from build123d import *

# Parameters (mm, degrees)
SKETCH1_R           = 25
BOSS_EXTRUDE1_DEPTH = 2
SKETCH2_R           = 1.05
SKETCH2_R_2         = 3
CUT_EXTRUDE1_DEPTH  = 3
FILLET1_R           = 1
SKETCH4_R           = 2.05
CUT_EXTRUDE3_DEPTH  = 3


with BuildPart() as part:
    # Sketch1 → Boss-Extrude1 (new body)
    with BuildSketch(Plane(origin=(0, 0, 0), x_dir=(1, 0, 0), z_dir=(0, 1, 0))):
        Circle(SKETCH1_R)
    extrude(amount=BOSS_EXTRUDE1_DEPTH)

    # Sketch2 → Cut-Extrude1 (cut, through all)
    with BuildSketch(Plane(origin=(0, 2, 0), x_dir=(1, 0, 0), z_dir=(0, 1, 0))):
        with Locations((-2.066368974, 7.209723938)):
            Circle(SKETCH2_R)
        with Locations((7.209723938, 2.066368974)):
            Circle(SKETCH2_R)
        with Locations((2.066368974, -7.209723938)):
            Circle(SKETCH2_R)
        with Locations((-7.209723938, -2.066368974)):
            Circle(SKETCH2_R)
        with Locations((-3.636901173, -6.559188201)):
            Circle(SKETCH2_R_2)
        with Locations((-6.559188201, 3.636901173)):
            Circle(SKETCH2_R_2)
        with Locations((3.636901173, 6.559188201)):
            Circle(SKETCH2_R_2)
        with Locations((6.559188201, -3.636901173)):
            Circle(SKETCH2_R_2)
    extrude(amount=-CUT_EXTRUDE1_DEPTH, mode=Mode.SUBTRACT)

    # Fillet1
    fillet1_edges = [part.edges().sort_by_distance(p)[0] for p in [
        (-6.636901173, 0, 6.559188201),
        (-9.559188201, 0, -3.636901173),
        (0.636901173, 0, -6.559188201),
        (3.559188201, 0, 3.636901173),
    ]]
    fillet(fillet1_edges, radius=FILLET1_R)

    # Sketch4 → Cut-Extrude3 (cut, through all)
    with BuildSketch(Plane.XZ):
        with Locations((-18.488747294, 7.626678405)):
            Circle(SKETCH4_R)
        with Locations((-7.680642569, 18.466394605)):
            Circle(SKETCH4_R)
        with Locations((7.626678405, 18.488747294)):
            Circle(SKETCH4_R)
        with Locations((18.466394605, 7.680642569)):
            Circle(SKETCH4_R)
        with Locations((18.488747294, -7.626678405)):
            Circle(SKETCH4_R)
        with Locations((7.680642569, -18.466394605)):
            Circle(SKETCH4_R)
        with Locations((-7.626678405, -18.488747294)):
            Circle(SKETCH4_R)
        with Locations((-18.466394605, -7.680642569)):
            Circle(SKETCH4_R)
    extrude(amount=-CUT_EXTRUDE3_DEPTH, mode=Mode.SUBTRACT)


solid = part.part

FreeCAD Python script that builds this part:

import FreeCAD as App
import Part
import Sketcher
from FreeCAD import Vector


def edges_at(feature, points):
    """Names of the edges that pass closest to the given points."""
    edges = feature.Shape.Edges
    near = lambda p: min(range(len(edges)), key=lambda i: edges[i].distToShape(Part.Vertex(*p))[0])
    return sorted({f"Edge{near(p) + 1}" for p in points})

doc = App.newDocument("Part")
body = doc.addObject("PartDesign::Body", "Body")

sketch1 = body.newObject("Sketcher::SketchObject", "Sketch")
sketch1.AttachmentSupport = (doc.getObject("XZ_Plane"), [""])
sketch1.MapMode = "FlatFace"
sketch1.addGeometry(Part.Circle(Vector(0, 0, 0), Vector(0, 0, 1), 25), False)
sketch1.addConstraint(Sketcher.Constraint("Coincident", 0, 3, -1, 1))
sketch1.addConstraint(Sketcher.Constraint("Diameter", 0, 50.0))
pad1 = body.newObject("PartDesign::Pad", "Pad")
pad1.Profile = sketch1
pad1.Length = 2
pad1.Reversed = True

sketch2 = body.newObject("Sketcher::SketchObject", "Sketch001")
sketch2.AttachmentSupport = (doc.getObject("XZ_Plane"), [""])
sketch2.MapMode = "FlatFace"
sketch2.AttachmentOffset = App.Placement(Vector(0, 0, -2), App.Rotation())
sketch2.addGeometry(Part.Circle(Vector(-2.1, -7.2, 0), Vector(0, 0, 1), 1.1), False)
sketch2.addGeometry(Part.Circle(Vector(7.2, -2.1, 0), Vector(0, 0, 1), 1.1), False)
sketch2.addGeometry(Part.Circle(Vector(2.1, 7.2, 0), Vector(0, 0, 1), 1.1), False)
sketch2.addGeometry(Part.Circle(Vector(-7.2, 2.1, 0), Vector(0, 0, 1), 1.1), False)
sketch2.addGeometry(Part.Circle(Vector(-3.6, 6.6, 0), Vector(0, 0, 1), 3), False)
sketch2.addGeometry(Part.Circle(Vector(-6.6, -3.6, 0), Vector(0, 0, 1), 3), False)
sketch2.addGeometry(Part.Circle(Vector(3.6, -6.6, 0), Vector(0, 0, 1), 3), False)
sketch2.addGeometry(Part.Circle(Vector(6.6, 3.6, 0), Vector(0, 0, 1), 3), False)
sketch2.addConstraint(Sketcher.Constraint("Equal", 0, 1))
sketch2.addConstraint(Sketcher.Constraint("Equal", 1, 2))
sketch2.addConstraint(Sketcher.Constraint("Equal", 2, 3))
sketch2.addConstraint(Sketcher.Constraint("Equal", 4, 5))
sketch2.addConstraint(Sketcher.Constraint("Equal", 5, 6))
sketch2.addConstraint(Sketcher.Constraint("Equal", 6, 7))
sketch2.addConstraint(Sketcher.Constraint("Symmetric", 0, 3, 2, 3, -1, 1))
sketch2.addConstraint(Sketcher.Constraint("Symmetric", 1, 3, 3, 3, -1, 1))
sketch2.addConstraint(Sketcher.Constraint("Symmetric", 4, 3, 6, 3, -1, 1))
sketch2.addConstraint(Sketcher.Constraint("Symmetric", 5, 3, 7, 3, -1, 1))
sketch2.addConstraint(Sketcher.Constraint("Diameter", 4, 6.0))
sketch2.addConstraint(Sketcher.Constraint("Diameter", 0, 2.1))
sketch2.addConstraint(Sketcher.Constraint("DistanceX", 4, 3, -1, 1, 3.636901))
sketch2.addConstraint(Sketcher.Constraint("DistanceY", 5, 3, -1, 1, 3.636901))
sketch2.addConstraint(Sketcher.Constraint("DistanceX", 0, 3, -1, 1, 2.066369))
sketch2.addConstraint(Sketcher.Constraint("DistanceY", 1, 3, -1, 1, 2.066369))
sketch2.addConstraint(Sketcher.Constraint("DistanceY", -1, 1, 4, 3, 6.559188))
sketch2.addConstraint(Sketcher.Constraint("DistanceX", 5, 3, -1, 1, 6.559188))
sketch2.addConstraint(Sketcher.Constraint("DistanceY", 0, 3, -1, 1, 7.209724))
sketch2.addConstraint(Sketcher.Constraint("DistanceX", -1, 1, 1, 3, 7.209724))
pocket1 = body.newObject("PartDesign::Pocket", "Pocket")
pocket1.Profile = sketch2
pocket1.Type = "ThroughAll"
pocket1.Reversed = True
doc.recompute()

fillet = body.newObject("PartDesign::Fillet", "Fillet")
fillet.Base = (pocket1, edges_at(pocket1, [
    (-6.637, 0, 6.559),
    (-9.559, 0, -3.637),
    (0.637, 0, -6.559),
    (3.559, 0, 3.637),
]))
fillet.Radius = 1

sketch3 = body.newObject("Sketcher::SketchObject", "Sketch002")
sketch3.AttachmentSupport = (doc.getObject("XZ_Plane"), [""])
sketch3.MapMode = "FlatFace"
sketch3.addGeometry(Part.Circle(Vector(-18.5, 7.6, 0), Vector(0, 0, 1), 2), False)
sketch3.addGeometry(Part.Circle(Vector(-7.7, 18.5, 0), Vector(0, 0, 1), 2), False)
sketch3.addGeometry(Part.Circle(Vector(7.6, 18.5, 0), Vector(0, 0, 1), 2), False)
sketch3.addGeometry(Part.Circle(Vector(18.5, 7.7, 0), Vector(0, 0, 1), 2), False)
sketch3.addGeometry(Part.Circle(Vector(18.5, -7.6, 0), Vector(0, 0, 1), 2), False)
sketch3.addGeometry(Part.Circle(Vector(7.7, -18.5, 0), Vector(0, 0, 1), 2), False)
sketch3.addGeometry(Part.Circle(Vector(-7.6, -18.5, 0), Vector(0, 0, 1), 2), False)
sketch3.addGeometry(Part.Circle(Vector(-18.5, -7.7, 0), Vector(0, 0, 1), 2), False)
sketch3.addConstraint(Sketcher.Constraint("Equal", 0, 1))
sketch3.addConstraint(Sketcher.Constraint("Equal", 1, 2))
sketch3.addConstraint(Sketcher.Constraint("Equal", 2, 3))
sketch3.addConstraint(Sketcher.Constraint("Equal", 3, 4))
sketch3.addConstraint(Sketcher.Constraint("Equal", 4, 5))
sketch3.addConstraint(Sketcher.Constraint("Equal", 5, 6))
sketch3.addConstraint(Sketcher.Constraint("Equal", 6, 7))
sketch3.addConstraint(Sketcher.Constraint("Symmetric", 0, 3, 4, 3, -1, 1))
sketch3.addConstraint(Sketcher.Constraint("Symmetric", 1, 3, 5, 3, -1, 1))
sketch3.addConstraint(Sketcher.Constraint("Symmetric", 2, 3, 6, 3, -1, 1))
sketch3.addConstraint(Sketcher.Constraint("Symmetric", 3, 3, 7, 3, -1, 1))
sketch3.addConstraint(Sketcher.Constraint("Diameter", 0, 4.1))
sketch3.addConstraint(Sketcher.Constraint("DistanceY", -1, 1, 0, 3, 7.626678))
sketch3.addConstraint(Sketcher.Constraint("DistanceX", -1, 1, 2, 3, 7.626678))
sketch3.addConstraint(Sketcher.Constraint("DistanceX", 1, 3, 2, 3, 15.307321))
sketch3.addConstraint(Sketcher.Constraint("DistanceY", 0, 3, 2, 3, 10.862069))
sketch3.addConstraint(Sketcher.Constraint("DistanceX", 0, 3, 3, 3, 36.955142))
sketch3.addConstraint(Sketcher.Constraint("DistanceY", 4, 3, 3, 3, 15.307321))
sketch3.addConstraint(Sketcher.Constraint("DistanceX", 2, 3, 4, 3, 10.862069))
sketch3.addConstraint(Sketcher.Constraint("DistanceY", 5, 3, 2, 3, 36.955142))
pocket2 = body.newObject("PartDesign::Pocket", "Pocket001")
pocket2.Profile = sketch3
pocket2.Type = "ThroughAll"

doc.recompute()
